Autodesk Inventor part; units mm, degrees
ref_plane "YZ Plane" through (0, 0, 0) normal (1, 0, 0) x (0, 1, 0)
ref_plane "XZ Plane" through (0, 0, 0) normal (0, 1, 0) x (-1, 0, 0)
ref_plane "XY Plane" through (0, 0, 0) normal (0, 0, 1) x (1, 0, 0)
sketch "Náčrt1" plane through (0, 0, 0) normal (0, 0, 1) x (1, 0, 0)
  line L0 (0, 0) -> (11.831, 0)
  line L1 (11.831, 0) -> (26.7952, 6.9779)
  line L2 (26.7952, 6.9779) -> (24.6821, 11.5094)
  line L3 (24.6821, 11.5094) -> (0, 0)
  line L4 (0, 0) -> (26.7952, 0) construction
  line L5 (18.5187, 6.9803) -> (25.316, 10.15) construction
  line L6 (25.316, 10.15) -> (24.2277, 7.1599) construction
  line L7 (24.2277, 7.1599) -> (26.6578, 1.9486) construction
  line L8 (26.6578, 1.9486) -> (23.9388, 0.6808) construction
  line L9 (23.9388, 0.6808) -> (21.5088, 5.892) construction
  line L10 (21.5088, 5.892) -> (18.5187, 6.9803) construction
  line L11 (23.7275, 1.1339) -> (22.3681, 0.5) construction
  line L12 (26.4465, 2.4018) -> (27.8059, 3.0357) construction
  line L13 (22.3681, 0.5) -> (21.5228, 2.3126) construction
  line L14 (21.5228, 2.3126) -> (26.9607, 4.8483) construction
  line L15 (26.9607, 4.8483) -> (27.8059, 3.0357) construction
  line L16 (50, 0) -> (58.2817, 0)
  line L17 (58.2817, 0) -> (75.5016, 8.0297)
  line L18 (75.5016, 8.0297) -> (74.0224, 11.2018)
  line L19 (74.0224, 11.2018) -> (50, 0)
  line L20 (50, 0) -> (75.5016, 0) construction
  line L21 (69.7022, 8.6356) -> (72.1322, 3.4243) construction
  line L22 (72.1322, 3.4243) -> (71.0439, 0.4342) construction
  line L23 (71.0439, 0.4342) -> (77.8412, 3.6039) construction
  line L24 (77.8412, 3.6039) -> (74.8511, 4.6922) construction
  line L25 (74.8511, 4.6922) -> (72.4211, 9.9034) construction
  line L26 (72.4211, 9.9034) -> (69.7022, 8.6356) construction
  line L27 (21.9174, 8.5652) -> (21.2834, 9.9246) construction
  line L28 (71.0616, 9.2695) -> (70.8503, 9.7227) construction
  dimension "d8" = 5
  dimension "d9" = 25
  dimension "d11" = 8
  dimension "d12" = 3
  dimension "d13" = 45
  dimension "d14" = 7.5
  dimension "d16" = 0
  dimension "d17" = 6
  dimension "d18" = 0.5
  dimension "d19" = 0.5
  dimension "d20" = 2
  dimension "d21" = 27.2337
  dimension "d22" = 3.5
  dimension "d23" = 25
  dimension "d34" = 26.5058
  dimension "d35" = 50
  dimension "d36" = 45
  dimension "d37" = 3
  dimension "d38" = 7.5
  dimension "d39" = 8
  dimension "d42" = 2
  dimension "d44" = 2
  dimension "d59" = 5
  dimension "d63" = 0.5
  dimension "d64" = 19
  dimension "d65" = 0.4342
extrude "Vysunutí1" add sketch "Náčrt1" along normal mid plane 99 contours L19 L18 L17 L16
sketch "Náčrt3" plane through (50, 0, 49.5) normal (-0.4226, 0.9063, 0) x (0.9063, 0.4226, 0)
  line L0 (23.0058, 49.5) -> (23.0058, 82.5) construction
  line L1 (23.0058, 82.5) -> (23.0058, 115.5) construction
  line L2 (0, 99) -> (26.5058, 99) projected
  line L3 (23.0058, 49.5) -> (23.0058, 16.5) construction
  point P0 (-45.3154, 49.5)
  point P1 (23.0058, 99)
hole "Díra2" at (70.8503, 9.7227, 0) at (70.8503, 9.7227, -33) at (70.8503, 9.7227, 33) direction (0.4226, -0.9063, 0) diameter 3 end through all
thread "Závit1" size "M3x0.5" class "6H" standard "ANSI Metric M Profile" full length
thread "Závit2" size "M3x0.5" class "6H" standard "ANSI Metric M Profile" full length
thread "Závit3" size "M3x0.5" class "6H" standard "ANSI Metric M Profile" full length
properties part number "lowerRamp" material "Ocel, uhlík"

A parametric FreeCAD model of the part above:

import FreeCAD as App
import Part
import Sketcher

V = App.Vector
Q = App.Units.Quantity

doc = App.newDocument("Part")
body = doc.addObject("PartDesign::Body", "Body")

# Sketch on XY plane
sketch1 = body.newObject("Sketcher::SketchObject", "Sketch")
sketch1.AttachmentSupport = (doc.getObject("XY_Plane"), [""])
sketch1.MapMode = "FlatFace"
sketch1.addGeometry(Part.LineSegment(V(74, 11.2, 0), V(50, 0, 0)), False)
sketch1.addGeometry(Part.LineSegment(V(50, 0, 0), V(58.3, 0, 0)), False)
sketch1.addGeometry(Part.LineSegment(V(58.3, 0, 0), V(75.5, 8, 0)), False)
sketch1.addGeometry(Part.LineSegment(V(75.5, 8, 0), V(74, 11.2, 0)), False)
sketch1.addConstraint(Sketcher.Constraint("Coincident", 0, 2, 1, 1))
sketch1.addConstraint(Sketcher.Constraint("Coincident", 1, 2, 2, 1))
sketch1.addConstraint(Sketcher.Constraint("Coincident", 2, 2, 3, 1))
sketch1.addConstraint(Sketcher.Constraint("Coincident", 3, 2, 0, 1))
sketch1.addConstraint(Sketcher.Constraint("Horizontal", 1))
sketch1.addConstraint(Sketcher.Constraint("PointOnObject", 0, 2, -1))
sketch1.addConstraint(Sketcher.Constraint("Parallel", 0, 2))
sketch1.addConstraint(Sketcher.Constraint("Perpendicular", 2, 3))
sketch1.addConstraint(Sketcher.Constraint("Angle", 2, Q("24.9998 deg")))
sketch1.addConstraint(Sketcher.Constraint("Distance", 2, 19.0))
sketch1.addConstraint(Sketcher.Constraint("DistanceX", -1, 1, 0, 2, 50.0))
sketch1.addConstraint(Sketcher.Constraint("Distance", 3, 3.5))
pad1 = body.newObject("PartDesign::Pad", "Pad")
pad1.Profile = sketch1
pad1.Length = 99
pad1.Midplane = True

# Sketch on an angled plane
sketch2 = body.newObject("Sketcher::SketchObject", "Sketch001")
sketch2.Placement = App.Placement(V(8.930292, -19.151074, 0), App.Rotation(V(-0.906307787, -0.422618262, 0), V(0, 0, 1), V(-0.422618262, 0.906307787, 0), "ZXY"))
sketch2.addGeometry(Part.Circle(V(-68.3, 0, 0), V(0, 0, 1), 1.5), False)
sketch2.addGeometry(Part.Circle(V(-68.3, -33, 0), V(0, 0, 1), 1.5), False)
sketch2.addGeometry(Part.Circle(V(-68.3, 33, 0), V(0, 0, 1), 1.5), False)
sketch2.addConstraint(Sketcher.Constraint("Equal", 0, 1))
sketch2.addConstraint(Sketcher.Constraint("Equal", 1, 2))
sketch2.addConstraint(Sketcher.Constraint("Symmetric", 1, 3, 2, 3, -1))
sketch2.addConstraint(Sketcher.Constraint("PointOnObject", 0, 3, -1))
sketch2.addConstraint(Sketcher.Constraint("Vertical", 0, 3, 1, 3))
sketch2.addConstraint(Sketcher.Constraint("Diameter", 0, 3.0))
sketch2.addConstraint(Sketcher.Constraint("DistanceY", 1, 3, -1, 1, 33.0))
sketch2.addConstraint(Sketcher.Constraint("DistanceX", 0, 3, -1, 1, 68.3212))
doc.recompute()
hole = body.newObject("PartDesign::Hole", "Hole")
hole.Profile = sketch2
hole.ThreadType = "None"
hole.Diameter = 3
hole.DepthType = "ThroughAll"

doc.recompute()
